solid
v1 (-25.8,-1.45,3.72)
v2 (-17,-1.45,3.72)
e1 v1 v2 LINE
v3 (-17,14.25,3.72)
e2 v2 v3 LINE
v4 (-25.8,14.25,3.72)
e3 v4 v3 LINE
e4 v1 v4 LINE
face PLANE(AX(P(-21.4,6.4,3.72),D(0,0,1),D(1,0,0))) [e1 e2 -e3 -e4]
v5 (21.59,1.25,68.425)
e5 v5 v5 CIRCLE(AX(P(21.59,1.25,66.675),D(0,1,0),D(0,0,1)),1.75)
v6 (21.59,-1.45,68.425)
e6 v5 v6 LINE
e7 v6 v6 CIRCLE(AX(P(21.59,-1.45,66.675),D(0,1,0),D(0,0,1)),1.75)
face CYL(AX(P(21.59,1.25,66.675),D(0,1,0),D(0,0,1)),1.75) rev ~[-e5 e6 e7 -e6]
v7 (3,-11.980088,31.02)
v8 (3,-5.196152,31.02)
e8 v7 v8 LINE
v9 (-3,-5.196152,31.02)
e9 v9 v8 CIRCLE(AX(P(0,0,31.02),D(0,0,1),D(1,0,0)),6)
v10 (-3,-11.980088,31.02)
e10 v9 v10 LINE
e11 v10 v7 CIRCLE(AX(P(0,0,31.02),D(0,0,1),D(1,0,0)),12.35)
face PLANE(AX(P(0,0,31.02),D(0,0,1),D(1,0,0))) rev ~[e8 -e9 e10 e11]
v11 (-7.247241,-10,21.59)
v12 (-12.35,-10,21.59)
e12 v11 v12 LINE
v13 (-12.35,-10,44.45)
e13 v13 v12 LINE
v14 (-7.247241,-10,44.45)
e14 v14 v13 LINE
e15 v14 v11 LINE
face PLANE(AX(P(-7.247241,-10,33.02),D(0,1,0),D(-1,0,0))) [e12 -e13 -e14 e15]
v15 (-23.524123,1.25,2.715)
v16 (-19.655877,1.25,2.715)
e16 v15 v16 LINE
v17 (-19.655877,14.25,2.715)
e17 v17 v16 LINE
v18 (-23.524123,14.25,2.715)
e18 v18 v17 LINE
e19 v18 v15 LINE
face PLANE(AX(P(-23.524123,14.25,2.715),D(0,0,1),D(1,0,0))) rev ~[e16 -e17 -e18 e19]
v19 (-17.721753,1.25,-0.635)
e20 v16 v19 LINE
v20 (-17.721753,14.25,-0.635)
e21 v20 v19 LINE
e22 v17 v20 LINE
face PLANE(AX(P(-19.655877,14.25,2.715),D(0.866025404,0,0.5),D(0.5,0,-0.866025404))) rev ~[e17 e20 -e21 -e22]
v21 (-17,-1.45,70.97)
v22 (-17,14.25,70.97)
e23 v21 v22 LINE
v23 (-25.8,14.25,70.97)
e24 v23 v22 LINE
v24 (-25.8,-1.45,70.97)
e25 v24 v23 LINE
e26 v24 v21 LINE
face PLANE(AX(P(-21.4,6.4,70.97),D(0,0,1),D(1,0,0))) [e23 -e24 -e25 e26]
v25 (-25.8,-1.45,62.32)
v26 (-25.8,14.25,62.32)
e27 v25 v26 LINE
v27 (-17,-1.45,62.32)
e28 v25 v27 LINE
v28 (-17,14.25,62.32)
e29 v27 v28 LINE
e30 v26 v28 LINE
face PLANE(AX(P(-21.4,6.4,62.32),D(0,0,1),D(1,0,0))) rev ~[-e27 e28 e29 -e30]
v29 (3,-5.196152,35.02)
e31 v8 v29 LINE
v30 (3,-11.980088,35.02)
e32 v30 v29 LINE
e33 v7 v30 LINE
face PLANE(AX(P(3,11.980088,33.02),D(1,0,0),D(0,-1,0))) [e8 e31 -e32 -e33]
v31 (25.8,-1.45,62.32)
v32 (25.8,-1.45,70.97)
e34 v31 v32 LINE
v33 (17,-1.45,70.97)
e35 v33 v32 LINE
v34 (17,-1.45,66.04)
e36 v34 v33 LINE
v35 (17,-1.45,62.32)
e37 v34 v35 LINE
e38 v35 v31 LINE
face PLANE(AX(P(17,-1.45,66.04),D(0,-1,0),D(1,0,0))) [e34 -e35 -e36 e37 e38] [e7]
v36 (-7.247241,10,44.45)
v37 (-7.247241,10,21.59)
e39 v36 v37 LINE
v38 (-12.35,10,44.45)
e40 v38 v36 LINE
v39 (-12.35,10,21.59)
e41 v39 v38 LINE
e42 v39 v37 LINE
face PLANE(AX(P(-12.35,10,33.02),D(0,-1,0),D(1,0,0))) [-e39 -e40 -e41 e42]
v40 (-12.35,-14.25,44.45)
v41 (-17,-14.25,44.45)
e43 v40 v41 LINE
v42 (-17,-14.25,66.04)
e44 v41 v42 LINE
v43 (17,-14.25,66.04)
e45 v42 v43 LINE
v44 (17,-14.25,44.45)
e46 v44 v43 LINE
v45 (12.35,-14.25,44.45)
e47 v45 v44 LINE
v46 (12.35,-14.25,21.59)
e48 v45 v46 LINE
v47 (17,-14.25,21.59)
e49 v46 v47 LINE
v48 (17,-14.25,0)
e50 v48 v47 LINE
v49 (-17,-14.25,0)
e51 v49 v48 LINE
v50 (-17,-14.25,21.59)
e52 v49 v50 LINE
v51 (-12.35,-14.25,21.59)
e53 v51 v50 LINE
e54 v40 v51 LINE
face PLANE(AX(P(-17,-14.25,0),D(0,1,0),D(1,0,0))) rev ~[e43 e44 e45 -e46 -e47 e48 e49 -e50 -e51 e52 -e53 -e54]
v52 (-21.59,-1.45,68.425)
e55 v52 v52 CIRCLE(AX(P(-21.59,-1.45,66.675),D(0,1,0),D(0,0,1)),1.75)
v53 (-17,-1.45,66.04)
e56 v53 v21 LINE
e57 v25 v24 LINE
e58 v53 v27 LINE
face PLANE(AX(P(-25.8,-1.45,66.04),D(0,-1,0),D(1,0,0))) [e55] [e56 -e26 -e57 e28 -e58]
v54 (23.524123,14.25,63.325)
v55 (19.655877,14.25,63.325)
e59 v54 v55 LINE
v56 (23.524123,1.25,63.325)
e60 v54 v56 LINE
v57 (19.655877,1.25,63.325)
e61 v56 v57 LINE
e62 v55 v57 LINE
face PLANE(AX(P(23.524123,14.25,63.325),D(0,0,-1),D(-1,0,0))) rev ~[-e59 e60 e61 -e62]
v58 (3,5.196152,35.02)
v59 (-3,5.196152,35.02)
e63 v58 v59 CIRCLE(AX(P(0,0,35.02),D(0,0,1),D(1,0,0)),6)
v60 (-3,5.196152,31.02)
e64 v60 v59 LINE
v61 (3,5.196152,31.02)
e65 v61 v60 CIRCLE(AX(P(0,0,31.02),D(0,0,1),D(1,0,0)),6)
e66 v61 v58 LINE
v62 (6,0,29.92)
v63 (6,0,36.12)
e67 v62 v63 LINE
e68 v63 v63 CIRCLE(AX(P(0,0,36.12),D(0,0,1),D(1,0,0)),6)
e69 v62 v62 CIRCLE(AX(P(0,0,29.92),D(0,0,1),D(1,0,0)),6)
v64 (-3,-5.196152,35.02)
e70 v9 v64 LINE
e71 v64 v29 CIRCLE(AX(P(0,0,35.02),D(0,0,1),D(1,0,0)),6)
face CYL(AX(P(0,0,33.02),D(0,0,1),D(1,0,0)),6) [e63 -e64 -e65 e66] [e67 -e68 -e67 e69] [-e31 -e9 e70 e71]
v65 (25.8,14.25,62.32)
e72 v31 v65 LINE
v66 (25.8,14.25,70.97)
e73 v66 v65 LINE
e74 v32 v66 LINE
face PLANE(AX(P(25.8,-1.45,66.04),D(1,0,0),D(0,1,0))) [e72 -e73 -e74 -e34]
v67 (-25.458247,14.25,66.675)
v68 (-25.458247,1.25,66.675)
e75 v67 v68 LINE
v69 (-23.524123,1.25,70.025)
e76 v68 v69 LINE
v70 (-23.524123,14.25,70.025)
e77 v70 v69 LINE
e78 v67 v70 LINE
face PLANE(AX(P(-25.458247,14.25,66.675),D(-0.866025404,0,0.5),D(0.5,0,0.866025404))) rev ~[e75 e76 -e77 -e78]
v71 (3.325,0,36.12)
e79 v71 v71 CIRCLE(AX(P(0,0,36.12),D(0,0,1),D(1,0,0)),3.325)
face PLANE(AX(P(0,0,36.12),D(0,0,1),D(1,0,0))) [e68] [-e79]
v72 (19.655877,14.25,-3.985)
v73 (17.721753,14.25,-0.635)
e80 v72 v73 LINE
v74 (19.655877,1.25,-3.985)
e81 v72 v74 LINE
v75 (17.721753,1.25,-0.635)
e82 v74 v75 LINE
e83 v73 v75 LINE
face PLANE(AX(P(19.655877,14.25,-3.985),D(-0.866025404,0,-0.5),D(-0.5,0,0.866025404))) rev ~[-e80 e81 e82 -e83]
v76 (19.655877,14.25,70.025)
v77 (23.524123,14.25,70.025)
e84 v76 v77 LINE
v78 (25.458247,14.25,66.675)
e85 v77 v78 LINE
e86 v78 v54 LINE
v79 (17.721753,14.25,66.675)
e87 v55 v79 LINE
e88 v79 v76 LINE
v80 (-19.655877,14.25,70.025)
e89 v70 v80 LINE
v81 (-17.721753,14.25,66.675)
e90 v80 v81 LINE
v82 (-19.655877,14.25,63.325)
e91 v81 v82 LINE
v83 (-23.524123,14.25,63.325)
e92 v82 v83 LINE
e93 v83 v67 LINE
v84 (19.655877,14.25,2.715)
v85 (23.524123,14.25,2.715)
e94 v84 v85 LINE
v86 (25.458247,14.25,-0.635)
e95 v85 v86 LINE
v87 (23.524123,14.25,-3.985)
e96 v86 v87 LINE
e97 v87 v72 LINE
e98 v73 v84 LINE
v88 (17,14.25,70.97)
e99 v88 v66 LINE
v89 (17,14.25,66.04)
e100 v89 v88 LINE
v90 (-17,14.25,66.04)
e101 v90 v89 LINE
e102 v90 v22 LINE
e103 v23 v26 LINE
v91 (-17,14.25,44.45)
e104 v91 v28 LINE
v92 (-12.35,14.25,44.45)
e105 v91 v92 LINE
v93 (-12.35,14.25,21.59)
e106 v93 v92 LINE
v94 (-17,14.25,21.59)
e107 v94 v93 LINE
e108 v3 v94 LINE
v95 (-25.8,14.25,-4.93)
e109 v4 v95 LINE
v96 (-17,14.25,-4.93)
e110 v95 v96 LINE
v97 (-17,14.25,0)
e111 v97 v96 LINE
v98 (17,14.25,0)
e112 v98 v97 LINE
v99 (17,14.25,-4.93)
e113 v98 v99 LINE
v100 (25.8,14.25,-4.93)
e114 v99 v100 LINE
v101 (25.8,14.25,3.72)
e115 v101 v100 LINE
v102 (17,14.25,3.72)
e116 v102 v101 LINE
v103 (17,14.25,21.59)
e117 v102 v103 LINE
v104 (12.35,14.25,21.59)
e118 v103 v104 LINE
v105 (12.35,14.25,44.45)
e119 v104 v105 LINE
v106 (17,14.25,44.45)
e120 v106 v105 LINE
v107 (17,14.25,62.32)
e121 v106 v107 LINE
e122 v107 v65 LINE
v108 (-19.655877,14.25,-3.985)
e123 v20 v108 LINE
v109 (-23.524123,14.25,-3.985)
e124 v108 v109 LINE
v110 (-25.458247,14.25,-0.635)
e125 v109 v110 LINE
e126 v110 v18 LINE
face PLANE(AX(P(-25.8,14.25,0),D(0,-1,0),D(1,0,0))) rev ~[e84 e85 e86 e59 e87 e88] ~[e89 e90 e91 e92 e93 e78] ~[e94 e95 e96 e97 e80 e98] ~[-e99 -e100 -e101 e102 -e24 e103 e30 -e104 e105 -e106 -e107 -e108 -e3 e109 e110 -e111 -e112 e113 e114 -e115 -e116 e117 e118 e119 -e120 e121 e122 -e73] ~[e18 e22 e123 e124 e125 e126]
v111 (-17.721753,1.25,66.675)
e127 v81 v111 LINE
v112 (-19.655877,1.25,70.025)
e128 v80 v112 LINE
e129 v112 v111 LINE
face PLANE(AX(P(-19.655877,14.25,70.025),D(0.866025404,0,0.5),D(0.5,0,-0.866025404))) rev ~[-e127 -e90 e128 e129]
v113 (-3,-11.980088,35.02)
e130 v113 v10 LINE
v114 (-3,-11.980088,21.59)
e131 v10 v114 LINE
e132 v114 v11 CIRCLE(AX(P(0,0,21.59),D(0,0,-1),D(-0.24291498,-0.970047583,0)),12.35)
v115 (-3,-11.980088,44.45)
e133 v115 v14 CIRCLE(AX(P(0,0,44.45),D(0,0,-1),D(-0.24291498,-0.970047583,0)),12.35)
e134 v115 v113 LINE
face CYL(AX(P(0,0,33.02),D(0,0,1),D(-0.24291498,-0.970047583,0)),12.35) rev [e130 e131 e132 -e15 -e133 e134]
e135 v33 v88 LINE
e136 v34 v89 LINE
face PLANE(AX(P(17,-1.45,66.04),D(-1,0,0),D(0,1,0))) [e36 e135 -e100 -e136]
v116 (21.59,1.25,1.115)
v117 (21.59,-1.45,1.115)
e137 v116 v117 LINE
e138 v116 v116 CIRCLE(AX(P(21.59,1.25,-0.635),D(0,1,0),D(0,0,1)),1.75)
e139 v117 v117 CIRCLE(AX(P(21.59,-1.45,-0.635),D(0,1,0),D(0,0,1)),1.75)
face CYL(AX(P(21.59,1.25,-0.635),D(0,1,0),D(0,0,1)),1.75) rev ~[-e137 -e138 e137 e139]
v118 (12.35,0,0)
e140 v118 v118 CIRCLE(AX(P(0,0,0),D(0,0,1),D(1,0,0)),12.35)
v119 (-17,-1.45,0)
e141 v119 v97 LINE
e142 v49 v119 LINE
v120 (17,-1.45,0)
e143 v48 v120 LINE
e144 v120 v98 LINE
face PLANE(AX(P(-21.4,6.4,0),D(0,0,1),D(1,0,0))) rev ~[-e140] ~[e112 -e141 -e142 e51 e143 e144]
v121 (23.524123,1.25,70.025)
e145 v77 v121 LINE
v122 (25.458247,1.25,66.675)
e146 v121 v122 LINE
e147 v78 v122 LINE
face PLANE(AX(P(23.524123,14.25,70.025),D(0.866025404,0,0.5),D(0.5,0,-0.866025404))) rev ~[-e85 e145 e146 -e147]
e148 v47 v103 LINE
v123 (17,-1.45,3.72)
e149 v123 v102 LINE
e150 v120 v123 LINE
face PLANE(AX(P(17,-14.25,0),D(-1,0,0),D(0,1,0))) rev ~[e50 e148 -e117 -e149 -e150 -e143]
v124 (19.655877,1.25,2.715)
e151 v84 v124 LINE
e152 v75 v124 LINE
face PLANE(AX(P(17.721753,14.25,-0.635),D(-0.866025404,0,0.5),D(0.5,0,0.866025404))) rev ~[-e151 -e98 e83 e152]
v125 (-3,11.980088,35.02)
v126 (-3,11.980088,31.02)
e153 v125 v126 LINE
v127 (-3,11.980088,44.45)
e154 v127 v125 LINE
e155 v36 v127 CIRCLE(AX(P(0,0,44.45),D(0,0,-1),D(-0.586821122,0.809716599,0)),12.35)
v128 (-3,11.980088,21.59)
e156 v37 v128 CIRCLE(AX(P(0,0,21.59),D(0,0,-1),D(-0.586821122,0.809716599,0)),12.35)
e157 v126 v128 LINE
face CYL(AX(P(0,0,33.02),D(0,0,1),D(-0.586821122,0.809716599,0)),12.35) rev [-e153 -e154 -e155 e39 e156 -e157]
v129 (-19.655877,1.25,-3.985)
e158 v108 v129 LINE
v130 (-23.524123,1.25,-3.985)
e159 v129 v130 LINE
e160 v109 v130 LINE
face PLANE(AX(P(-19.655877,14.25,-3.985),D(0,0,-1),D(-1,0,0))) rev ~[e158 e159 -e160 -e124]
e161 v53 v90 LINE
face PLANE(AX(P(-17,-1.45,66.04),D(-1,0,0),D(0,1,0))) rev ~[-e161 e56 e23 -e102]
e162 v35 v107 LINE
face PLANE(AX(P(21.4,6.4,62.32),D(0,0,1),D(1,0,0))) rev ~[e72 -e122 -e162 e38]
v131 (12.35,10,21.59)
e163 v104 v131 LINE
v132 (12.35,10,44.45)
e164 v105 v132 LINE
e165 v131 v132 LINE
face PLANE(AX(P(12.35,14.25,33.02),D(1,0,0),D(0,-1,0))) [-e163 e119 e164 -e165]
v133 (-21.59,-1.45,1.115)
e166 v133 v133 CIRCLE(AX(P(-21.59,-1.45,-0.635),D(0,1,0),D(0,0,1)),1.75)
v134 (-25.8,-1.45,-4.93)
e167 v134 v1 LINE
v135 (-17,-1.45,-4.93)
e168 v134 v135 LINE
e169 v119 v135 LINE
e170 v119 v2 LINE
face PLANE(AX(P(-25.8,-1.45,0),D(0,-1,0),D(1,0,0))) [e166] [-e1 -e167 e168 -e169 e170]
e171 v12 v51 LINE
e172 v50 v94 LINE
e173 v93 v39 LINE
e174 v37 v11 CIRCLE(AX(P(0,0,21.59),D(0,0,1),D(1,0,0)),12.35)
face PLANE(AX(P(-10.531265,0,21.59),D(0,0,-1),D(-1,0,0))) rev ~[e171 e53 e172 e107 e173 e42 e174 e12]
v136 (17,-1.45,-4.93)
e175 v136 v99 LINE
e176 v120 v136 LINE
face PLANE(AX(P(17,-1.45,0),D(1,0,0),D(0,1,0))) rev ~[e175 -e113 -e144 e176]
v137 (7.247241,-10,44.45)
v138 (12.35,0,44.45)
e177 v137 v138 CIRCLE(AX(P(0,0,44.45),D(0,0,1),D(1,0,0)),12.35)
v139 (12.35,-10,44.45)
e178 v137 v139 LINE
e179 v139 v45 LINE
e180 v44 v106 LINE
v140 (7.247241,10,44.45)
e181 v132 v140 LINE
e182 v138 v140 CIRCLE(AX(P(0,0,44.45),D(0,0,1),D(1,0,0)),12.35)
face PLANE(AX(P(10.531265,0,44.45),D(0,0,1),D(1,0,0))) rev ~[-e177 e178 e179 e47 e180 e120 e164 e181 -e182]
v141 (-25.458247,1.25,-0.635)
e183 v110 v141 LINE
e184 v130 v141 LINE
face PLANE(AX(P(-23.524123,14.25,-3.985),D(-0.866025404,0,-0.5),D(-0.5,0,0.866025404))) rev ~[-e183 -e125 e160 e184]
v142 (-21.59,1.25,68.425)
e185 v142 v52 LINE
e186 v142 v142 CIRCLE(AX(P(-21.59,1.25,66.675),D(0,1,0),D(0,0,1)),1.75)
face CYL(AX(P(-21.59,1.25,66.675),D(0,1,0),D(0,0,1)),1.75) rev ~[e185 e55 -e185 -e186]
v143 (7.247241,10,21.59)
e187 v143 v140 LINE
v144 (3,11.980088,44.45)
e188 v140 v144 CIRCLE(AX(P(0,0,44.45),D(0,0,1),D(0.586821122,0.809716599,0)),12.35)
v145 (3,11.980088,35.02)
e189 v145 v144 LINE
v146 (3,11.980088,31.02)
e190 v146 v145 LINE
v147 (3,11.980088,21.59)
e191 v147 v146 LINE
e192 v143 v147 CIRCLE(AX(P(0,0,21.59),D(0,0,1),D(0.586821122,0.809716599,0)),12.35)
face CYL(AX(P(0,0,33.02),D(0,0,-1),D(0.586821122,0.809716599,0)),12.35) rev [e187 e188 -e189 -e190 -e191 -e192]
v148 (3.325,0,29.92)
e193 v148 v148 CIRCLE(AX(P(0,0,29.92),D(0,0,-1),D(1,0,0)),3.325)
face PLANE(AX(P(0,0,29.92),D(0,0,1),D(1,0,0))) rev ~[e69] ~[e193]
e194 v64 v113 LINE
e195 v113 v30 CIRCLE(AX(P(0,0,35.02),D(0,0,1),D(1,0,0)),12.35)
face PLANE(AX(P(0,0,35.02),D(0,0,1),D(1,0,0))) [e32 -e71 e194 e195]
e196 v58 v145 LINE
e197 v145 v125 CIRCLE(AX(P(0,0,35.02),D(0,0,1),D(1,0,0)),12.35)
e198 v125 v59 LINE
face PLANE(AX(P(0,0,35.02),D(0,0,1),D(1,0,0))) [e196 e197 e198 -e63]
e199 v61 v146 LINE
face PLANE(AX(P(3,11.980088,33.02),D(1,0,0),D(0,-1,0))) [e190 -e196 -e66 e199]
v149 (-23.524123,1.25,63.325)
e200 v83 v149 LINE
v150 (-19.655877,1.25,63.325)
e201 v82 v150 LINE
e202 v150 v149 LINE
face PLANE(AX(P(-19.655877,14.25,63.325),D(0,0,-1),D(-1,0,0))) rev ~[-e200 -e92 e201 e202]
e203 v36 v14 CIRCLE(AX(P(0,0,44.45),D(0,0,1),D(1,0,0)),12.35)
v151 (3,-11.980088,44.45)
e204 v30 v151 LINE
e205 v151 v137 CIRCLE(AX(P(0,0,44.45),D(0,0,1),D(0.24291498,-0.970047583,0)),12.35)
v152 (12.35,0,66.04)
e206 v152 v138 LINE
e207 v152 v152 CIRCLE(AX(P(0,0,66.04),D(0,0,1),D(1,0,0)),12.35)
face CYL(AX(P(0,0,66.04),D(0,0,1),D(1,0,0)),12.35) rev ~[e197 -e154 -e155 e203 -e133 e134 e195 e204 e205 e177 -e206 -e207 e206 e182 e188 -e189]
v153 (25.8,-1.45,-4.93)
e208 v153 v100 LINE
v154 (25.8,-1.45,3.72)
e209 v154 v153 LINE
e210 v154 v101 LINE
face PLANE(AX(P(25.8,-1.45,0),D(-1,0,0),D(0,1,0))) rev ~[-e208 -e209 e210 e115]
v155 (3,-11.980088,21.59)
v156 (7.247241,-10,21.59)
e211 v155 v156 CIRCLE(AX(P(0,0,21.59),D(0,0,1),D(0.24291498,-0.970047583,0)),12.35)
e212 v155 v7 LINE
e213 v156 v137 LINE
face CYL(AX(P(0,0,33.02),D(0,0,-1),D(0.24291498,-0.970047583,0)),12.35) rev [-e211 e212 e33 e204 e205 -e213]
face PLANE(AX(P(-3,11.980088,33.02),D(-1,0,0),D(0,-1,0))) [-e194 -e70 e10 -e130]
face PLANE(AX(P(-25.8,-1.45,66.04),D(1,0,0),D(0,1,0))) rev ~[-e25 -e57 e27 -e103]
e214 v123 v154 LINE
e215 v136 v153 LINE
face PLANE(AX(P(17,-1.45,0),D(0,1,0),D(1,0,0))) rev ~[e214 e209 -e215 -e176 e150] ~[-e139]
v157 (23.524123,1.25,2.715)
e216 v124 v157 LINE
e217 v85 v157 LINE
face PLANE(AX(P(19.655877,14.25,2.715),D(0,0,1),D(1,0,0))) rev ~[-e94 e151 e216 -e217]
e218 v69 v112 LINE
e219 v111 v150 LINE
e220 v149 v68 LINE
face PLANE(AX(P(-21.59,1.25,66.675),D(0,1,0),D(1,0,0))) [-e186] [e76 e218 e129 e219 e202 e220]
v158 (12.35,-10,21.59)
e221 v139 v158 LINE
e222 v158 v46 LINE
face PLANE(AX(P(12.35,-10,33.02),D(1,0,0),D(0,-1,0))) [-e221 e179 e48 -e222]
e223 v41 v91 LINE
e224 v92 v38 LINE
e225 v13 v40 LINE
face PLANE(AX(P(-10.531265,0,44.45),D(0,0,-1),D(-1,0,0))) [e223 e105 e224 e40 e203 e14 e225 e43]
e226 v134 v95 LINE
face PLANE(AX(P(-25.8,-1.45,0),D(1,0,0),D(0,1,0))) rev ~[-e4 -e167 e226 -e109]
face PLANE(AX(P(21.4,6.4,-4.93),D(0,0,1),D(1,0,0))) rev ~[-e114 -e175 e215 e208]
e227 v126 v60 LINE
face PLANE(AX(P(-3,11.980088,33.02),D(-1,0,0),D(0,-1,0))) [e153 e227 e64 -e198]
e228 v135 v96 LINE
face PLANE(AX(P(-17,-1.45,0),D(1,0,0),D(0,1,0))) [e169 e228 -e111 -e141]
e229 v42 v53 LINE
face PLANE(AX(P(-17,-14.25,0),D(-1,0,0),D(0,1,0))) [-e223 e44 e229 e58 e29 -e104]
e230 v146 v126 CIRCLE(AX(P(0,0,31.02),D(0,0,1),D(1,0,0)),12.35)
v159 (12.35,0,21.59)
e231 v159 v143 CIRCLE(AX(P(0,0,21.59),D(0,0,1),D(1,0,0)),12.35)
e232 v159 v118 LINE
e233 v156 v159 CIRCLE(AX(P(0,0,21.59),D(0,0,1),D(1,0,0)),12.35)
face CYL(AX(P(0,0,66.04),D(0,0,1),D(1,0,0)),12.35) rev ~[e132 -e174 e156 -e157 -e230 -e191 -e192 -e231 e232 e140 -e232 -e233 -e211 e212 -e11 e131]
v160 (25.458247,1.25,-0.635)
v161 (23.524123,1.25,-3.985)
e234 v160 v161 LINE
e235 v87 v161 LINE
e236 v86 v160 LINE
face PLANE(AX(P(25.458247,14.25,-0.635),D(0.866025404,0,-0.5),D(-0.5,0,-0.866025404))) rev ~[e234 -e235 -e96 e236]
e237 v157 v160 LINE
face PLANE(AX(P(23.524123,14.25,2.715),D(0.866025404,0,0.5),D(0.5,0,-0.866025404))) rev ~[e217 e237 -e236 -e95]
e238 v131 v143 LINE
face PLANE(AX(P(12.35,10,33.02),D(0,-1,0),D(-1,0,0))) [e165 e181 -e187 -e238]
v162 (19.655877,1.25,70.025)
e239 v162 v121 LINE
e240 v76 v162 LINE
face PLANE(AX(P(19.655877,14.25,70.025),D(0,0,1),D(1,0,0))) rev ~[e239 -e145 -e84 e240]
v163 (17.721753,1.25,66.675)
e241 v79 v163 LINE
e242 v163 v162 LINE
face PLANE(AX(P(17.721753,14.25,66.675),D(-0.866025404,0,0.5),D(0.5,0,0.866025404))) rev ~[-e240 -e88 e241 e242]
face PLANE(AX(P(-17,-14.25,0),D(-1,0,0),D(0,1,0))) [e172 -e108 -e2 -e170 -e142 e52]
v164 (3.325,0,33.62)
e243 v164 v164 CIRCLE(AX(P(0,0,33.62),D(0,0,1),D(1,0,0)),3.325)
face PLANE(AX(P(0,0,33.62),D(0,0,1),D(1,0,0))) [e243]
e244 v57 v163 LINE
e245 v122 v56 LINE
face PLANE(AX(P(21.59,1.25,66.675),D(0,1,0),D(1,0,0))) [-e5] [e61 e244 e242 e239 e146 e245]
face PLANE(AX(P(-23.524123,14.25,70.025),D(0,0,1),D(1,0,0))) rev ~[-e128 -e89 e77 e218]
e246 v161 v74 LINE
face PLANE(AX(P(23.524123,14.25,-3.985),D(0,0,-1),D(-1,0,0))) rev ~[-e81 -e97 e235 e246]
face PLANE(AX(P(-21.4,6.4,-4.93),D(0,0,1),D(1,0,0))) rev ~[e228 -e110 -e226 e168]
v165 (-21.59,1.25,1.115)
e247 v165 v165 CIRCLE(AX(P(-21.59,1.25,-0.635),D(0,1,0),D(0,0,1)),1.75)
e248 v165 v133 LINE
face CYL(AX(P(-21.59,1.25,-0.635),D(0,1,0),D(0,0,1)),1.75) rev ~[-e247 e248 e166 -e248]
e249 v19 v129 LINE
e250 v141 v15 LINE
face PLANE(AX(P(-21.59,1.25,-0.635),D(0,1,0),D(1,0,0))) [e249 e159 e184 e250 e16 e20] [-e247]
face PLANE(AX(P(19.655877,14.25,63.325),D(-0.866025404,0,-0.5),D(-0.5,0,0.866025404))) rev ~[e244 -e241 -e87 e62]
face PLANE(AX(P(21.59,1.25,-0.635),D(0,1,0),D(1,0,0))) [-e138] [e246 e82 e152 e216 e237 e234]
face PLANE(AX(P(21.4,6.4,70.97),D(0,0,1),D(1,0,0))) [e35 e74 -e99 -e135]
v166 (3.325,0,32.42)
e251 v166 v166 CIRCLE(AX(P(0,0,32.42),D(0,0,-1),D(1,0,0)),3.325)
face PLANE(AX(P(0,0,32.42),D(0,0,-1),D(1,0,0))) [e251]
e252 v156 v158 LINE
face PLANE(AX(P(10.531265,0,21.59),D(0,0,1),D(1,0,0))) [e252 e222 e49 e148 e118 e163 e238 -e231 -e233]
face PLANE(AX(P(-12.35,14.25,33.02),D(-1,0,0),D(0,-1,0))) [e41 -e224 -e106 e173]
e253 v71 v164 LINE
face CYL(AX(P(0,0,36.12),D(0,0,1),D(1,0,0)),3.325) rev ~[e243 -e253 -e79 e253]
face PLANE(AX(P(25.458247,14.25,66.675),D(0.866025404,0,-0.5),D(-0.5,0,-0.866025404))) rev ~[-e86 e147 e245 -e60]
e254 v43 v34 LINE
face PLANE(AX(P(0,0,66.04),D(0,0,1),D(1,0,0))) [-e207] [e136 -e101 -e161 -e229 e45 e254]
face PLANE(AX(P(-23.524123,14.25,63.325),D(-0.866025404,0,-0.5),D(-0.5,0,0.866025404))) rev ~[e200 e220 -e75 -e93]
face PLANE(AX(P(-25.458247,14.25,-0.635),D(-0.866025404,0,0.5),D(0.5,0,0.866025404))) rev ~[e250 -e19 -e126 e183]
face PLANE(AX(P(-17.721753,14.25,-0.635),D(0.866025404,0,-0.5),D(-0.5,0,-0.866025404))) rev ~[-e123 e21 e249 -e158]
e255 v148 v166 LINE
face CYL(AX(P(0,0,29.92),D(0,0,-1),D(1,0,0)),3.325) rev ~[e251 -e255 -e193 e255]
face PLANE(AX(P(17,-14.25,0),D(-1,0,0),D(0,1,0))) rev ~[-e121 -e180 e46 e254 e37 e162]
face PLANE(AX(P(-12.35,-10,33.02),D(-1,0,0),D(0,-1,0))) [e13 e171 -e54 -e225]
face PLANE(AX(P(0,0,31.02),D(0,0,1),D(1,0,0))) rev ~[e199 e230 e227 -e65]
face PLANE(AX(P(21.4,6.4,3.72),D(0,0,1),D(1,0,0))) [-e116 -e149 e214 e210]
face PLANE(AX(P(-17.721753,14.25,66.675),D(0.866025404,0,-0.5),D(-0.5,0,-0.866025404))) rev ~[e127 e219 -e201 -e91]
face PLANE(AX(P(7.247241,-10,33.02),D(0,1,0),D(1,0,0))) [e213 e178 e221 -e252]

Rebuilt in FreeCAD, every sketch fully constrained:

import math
import FreeCAD as App
import Part
import Sketcher
Q = App.Units.Quantity

doc = App.newDocument("Part")
body = doc.addObject("PartDesign::Body", "Body")

# Sketch on XY plane
sketch1 = body.newObject("Sketcher::SketchObject", "Sketch")
sketch1.AttachmentSupport = (doc.getObject("XY_Plane"), [""])
sketch1.MapMode = "FlatFace"
sketch1.addGeometry([
    Part.LineSegment(App.Vector(-17, 14, 0), App.Vector(-17, -14, 0)),
    Part.LineSegment(App.Vector(-17, -14, 0), App.Vector(17, -14, 0)),
    Part.LineSegment(App.Vector(17, -14, 0), App.Vector(17, 14, 0)),
    Part.LineSegment(App.Vector(17, 14, 0), App.Vector(-17, 14, 0)),
], False)
sketch1.addConstraint([
    Sketcher.Constraint("Coincident", 0, 2, 1, 1),
    Sketcher.Constraint("Coincident", 1, 2, 2, 1),
    Sketcher.Constraint("Coincident", 2, 2, 3, 1),
    Sketcher.Constraint("Coincident", 3, 2, 0, 1),
    Sketcher.Constraint("Vertical", 0),
    Sketcher.Constraint("Horizontal", 1),
    Sketcher.Constraint("Vertical", 2),
    Sketcher.Constraint("Horizontal", 3),
    Sketcher.Constraint("Symmetric", 0, 2, 2, 2, -1, 1),
    Sketcher.Constraint("DistanceX", 1, 1, 1, 2, 34.0),
    Sketcher.Constraint("DistanceY", 0, 2, 0, 1, 28.5),
])
pad1 = body.newObject("PartDesign::Pad", "Pad")
pad1.Profile = sketch1
pad1.Length = 66.04

# Sketch on XY plane
sketch2 = body.newObject("Sketcher::SketchObject", "Sketch001")
sketch2.AttachmentSupport = (doc.getObject("XY_Plane"), [""])
sketch2.MapMode = "FlatFace"
sketch2.AttachmentOffset = App.Placement(App.Vector(0, 0, 66.04), App.Rotation())
sketch2.addGeometry(Part.Circle(App.Vector(0, 0, 0), App.Vector(0, 0, 1), 12), False)
sketch2.addConstraint([
    Sketcher.Constraint("Coincident", 0, 3, -1, 1),
    Sketcher.Constraint("Diameter", 0, 24.7),
])
pocket1 = body.newObject("PartDesign::Pocket", "Pocket")
pocket1.Profile = sketch2
pocket1.Type = "ThroughAll"

# Sketch on XY plane
sketch3 = body.newObject("Sketcher::SketchObject", "Sketch002")
sketch3.AttachmentSupport = (doc.getObject("XY_Plane"), [""])
sketch3.MapMode = "FlatFace"
sketch3.AttachmentOffset = App.Placement(App.Vector(0, 0, 66.04), App.Rotation())
sketch3.addGeometry([
    Part.LineSegment(App.Vector(-26, 14, 0), App.Vector(-26, -1, 0)),  # 0
    Part.LineSegment(App.Vector(-26, -1, 0), App.Vector(-17, -1, 0)),  # 1
    Part.LineSegment(App.Vector(-17, -1, 0), App.Vector(-17, 14, 0)),  # 2
    Part.LineSegment(App.Vector(-17, 14, 0), App.Vector(-26, 14, 0)),  # 3
    Part.LineSegment(App.Vector(17, 14, 0), App.Vector(17, -1, 0)),  # 4
    Part.LineSegment(App.Vector(17, -1, 0), App.Vector(26, -1, 0)),  # 5
    Part.LineSegment(App.Vector(26, -1, 0), App.Vector(26, 14, 0)),  # 6
    Part.LineSegment(App.Vector(26, 14, 0), App.Vector(17, 14, 0)),  # 7
], False)
sketch3.addConstraint([
    Sketcher.Constraint("Coincident", 0, 2, 1, 1),
    Sketcher.Constraint("Coincident", 1, 2, 2, 1),
    Sketcher.Constraint("Coincident", 2, 2, 3, 1),
    Sketcher.Constraint("Coincident", 3, 2, 0, 1),
    Sketcher.Constraint("Coincident", 4, 2, 5, 1),
    Sketcher.Constraint("Coincident", 5, 2, 6, 1),
    Sketcher.Constraint("Coincident", 6, 2, 7, 1),
    Sketcher.Constraint("Coincident", 7, 2, 4, 1),
    Sketcher.Constraint("Vertical", 0),
    Sketcher.Constraint("Horizontal", 1),
    Sketcher.Constraint("Vertical", 2),
    Sketcher.Constraint("Horizontal", 3),
    Sketcher.Constraint("Vertical", 4),
    Sketcher.Constraint("Horizontal", 5),
    Sketcher.Constraint("Vertical", 6),
    Sketcher.Constraint("Horizontal", 7),
    Sketcher.Constraint("Symmetric", 1, 2, 4, 2, -2),
    Sketcher.Constraint("Symmetric", 3, 2, 6, 2, -2),
    Sketcher.Constraint("DistanceX", 1, 1, 1, 2, 8.8),
    Sketcher.Constraint("DistanceY", 0, 2, 0, 1, 15.7),
    Sketcher.Constraint("DistanceX", 1, 2, -1, 1, 17.0),
    Sketcher.Constraint("DistanceY", 0, 2, -1, 1, 1.45),
])
pad2 = body.newObject("PartDesign::Pad", "Pad001")
pad2.Profile = sketch3
pad2.Type = "TwoLengths"
pad2.Length = 4.93
pad2.Length2 = 3.72

# Sketch on XY plane
sketch4 = body.newObject("Sketcher::SketchObject", "Sketch003")
sketch4.AttachmentSupport = (doc.getObject("XY_Plane"), [""])
sketch4.MapMode = "FlatFace"
sketch4.addGeometry([
    Part.LineSegment(App.Vector(-26, 14, 0), App.Vector(-26, -1, 0)),  # 0
    Part.LineSegment(App.Vector(-26, -1, 0), App.Vector(-17, -1, 0)),  # 1
    Part.LineSegment(App.Vector(-17, -1, 0), App.Vector(-17, 14, 0)),  # 2
    Part.LineSegment(App.Vector(-17, 14, 0), App.Vector(-26, 14, 0)),  # 3
    Part.LineSegment(App.Vector(17, 14, 0), App.Vector(17, -1, 0)),  # 4
    Part.LineSegment(App.Vector(17, -1, 0), App.Vector(26, -1, 0)),  # 5
    Part.LineSegment(App.Vector(26, -1, 0), App.Vector(26, 14, 0)),  # 6
    Part.LineSegment(App.Vector(26, 14, 0), App.Vector(17, 14, 0)),  # 7
], False)
sketch4.addConstraint([
    Sketcher.Constraint("Coincident", 0, 2, 1, 1),
    Sketcher.Constraint("Coincident", 1, 2, 2, 1),
    Sketcher.Constraint("Coincident", 2, 2, 3, 1),
    Sketcher.Constraint("Coincident", 3, 2, 0, 1),
    Sketcher.Constraint("Coincident", 4, 2, 5, 1),
    Sketcher.Constraint("Coincident", 5, 2, 6, 1),
    Sketcher.Constraint("Coincident", 6, 2, 7, 1),
    Sketcher.Constraint("Coincident", 7, 2, 4, 1),
    Sketcher.Constraint("Vertical", 0),
    Sketcher.Constraint("Horizontal", 1),
    Sketcher.Constraint("Vertical", 2),
    Sketcher.Constraint("Horizontal", 3),
    Sketcher.Constraint("Vertical", 4),
    Sketcher.Constraint("Horizontal", 5),
    Sketcher.Constraint("Vertical", 6),
    Sketcher.Constraint("Horizontal", 7),
    Sketcher.Constraint("Symmetric", 1, 2, 4, 2, -2),
    Sketcher.Constraint("Symmetric", 3, 2, 6, 2, -2),
    Sketcher.Constraint("DistanceX", 1, 1, 1, 2, 8.8),
    Sketcher.Constraint("DistanceY", 0, 2, 0, 1, 15.7),
    Sketcher.Constraint("DistanceX", 1, 2, -1, 1, 17.0),
    Sketcher.Constraint("DistanceY", 0, 2, -1, 1, 1.45),
])
pad3 = body.newObject("PartDesign::Pad", "Pad002")
pad3.Profile = sketch4
pad3.Type = "TwoLengths"
pad3.Length = 3.72
pad3.Length2 = 4.93

# Sketch on XZ plane
sketch5 = body.newObject("Sketcher::SketchObject", "Sketch004")
sketch5.AttachmentSupport = (doc.getObject("XZ_Plane"), [""])
sketch5.MapMode = "FlatFace"
sketch5.AttachmentOffset = App.Placement(App.Vector(0, 0, -14.25), App.Rotation())
sketch5.addGeometry([
    Part.LineSegment(App.Vector(-25.5, -0.6, 0), App.Vector(-23.5, 2.7, 0)),  # 0
    Part.LineSegment(App.Vector(-23.5, 2.7, 0), App.Vector(-19.7, 2.7, 0)),  # 1
    Part.LineSegment(App.Vector(-19.7, 2.7, 0), App.Vector(-17.7, -0.6, 0)),  # 2
    Part.LineSegment(App.Vector(-17.7, -0.6, 0), App.Vector(-19.7, -4, 0)),  # 3
    Part.LineSegment(App.Vector(-19.7, -4, 0), App.Vector(-23.5, -4, 0)),  # 4
    Part.LineSegment(App.Vector(-23.5, -4, 0), App.Vector(-25.5, -0.6, 0)),  # 5
    Part.LineSegment(App.Vector(-17.7, 66.7, 0), App.Vector(-19.7, 63.3, 0)),  # 6
    Part.LineSegment(App.Vector(-19.7, 63.3, 0), App.Vector(-23.5, 63.3, 0)),  # 7
    Part.LineSegment(App.Vector(-23.5, 63.3, 0), App.Vector(-25.5, 66.7, 0)),  # 8
    Part.LineSegment(App.Vector(-25.5, 66.7, 0), App.Vector(-23.5, 70, 0)),  # 9
    Part.LineSegment(App.Vector(-23.5, 70, 0), App.Vector(-19.7, 70, 0)),  # 10
    Part.LineSegment(App.Vector(-19.7, 70, 0), App.Vector(-17.7, 66.7, 0)),  # 11
    Part.LineSegment(App.Vector(17.7, 66.7, 0), App.Vector(19.7, 70, 0)),  # 12
    Part.LineSegment(App.Vector(19.7, 70, 0), App.Vector(23.5, 70, 0)),  # 13
    Part.LineSegment(App.Vector(23.5, 70, 0), App.Vector(25.5, 66.7, 0)),  # 14
    Part.LineSegment(App.Vector(25.5, 66.7, 0), App.Vector(23.5, 63.3, 0)),  # 15
    Part.LineSegment(App.Vector(23.5, 63.3, 0), App.Vector(19.7, 63.3, 0)),  # 16
    Part.LineSegment(App.Vector(19.7, 63.3, 0), App.Vector(17.7, 66.7, 0)),  # 17
    Part.LineSegment(App.Vector(25.5, -0.6, 0), App.Vector(23.5, -4, 0)),  # 18
    Part.LineSegment(App.Vector(23.5, -4, 0), App.Vector(19.7, -4, 0)),  # 19
    Part.LineSegment(App.Vector(19.7, -4, 0), App.Vector(17.7, -0.6, 0)),  # 20
    Part.LineSegment(App.Vector(17.7, -0.6, 0), App.Vector(19.7, 2.7, 0)),  # 21
    Part.LineSegment(App.Vector(19.7, 2.7, 0), App.Vector(23.5, 2.7, 0)),  # 22
    Part.LineSegment(App.Vector(23.5, 2.7, 0), App.Vector(25.5, -0.6, 0)),  # 23
], False)
sketch5.addConstraint([
    Sketcher.Constraint("Coincident", 0, 2, 1, 1),
    Sketcher.Constraint("Coincident", 1, 2, 2, 1),
    Sketcher.Constraint("Coincident", 2, 2, 3, 1),
    Sketcher.Constraint("Coincident", 3, 2, 4, 1),
    Sketcher.Constraint("Coincident", 4, 2, 5, 1),
    Sketcher.Constraint("Coincident", 5, 2, 0, 1),
    Sketcher.Constraint("Coincident", 6, 2, 7, 1),
    Sketcher.Constraint("Coincident", 7, 2, 8, 1),
    Sketcher.Constraint("Coincident", 8, 2, 9, 1),
    Sketcher.Constraint("Coincident", 9, 2, 10, 1),
    Sketcher.Constraint("Coincident", 10, 2, 11, 1),
    Sketcher.Constraint("Coincident", 11, 2, 6, 1),
    Sketcher.Constraint("Coincident", 12, 2, 13, 1),
    Sketcher.Constraint("Coincident", 13, 2, 14, 1),
    Sketcher.Constraint("Coincident", 14, 2, 15, 1),
    Sketcher.Constraint("Coincident", 15, 2, 16, 1),
    Sketcher.Constraint("Coincident", 16, 2, 17, 1),
    Sketcher.Constraint("Coincident", 17, 2, 12, 1),
    Sketcher.Constraint("Coincident", 18, 2, 19, 1),
    Sketcher.Constraint("Coincident", 19, 2, 20, 1),
    Sketcher.Constraint("Coincident", 20, 2, 21, 1),
    Sketcher.Constraint("Coincident", 21, 2, 22, 1),
    Sketcher.Constraint("Coincident", 22, 2, 23, 1),
    Sketcher.Constraint("Coincident", 23, 2, 18, 1),
    Sketcher.Constraint("Horizontal", 1),
    Sketcher.Constraint("Horizontal", 4),
    Sketcher.Constraint("Horizontal", 7),
    Sketcher.Constraint("Horizontal", 10),
    Sketcher.Constraint("Horizontal", 13),
    Sketcher.Constraint("Horizontal", 16),
    Sketcher.Constraint("Horizontal", 19),
    Sketcher.Constraint("Horizontal", 22),
    Sketcher.Constraint("Symmetric", 10, 2, 12, 2, -2),
    Sketcher.Constraint("Symmetric", 8, 2, 14, 2, -2),
    Sketcher.Constraint("Symmetric", 7, 2, 15, 2, -2),
    Sketcher.Constraint("Symmetric", 11, 2, 17, 2, -2),
    Sketcher.Constraint("Symmetric", 4, 2, 18, 2, -2),
    Sketcher.Constraint("Symmetric", 2, 2, 20, 2, -2),
    Sketcher.Constraint("Symmetric", 1, 2, 21, 2, -2),
    Sketcher.Constraint("Symmetric", 5, 2, 23, 2, -2),
    Sketcher.Constraint("Parallel", 0, 3),
    Sketcher.Constraint("Parallel", 2, 5),
    Sketcher.Constraint("Parallel", 3, 6),
    Sketcher.Constraint("Parallel", 5, 8),
    Sketcher.Constraint("Parallel", 6, 9),
    Sketcher.Constraint("Parallel", 8, 11),
    Sketcher.Constraint("Parallel", 9, 12),
    Sketcher.Constraint("Parallel", 11, 14),
    Sketcher.Constraint("Parallel", 14, 17),
    Sketcher.Constraint("Parallel", 17, 20),
    Sketcher.Constraint("Parallel", 20, 23),
    Sketcher.Constraint("Horizontal", 2, 2, 5, 2),
    Sketcher.Constraint("Horizontal", 8, 2, 11, 2),
    Sketcher.Constraint("Vertical", 1, 2, 3, 2),
    Sketcher.Constraint("Vertical", 3, 2, 6, 2),
    Sketcher.Constraint("Vertical", 4, 2, 7, 2),
    Sketcher.Constraint("Vertical", 5, 2, 8, 2),
    Sketcher.Constraint("Vertical", 7, 2, 9, 2),
    Sketcher.Constraint("Angle", 0, Q("60 deg")),
    Sketcher.Constraint("DistanceY", 3, 2, 1, 2, 6.7),
    Sketcher.Constraint("DistanceY", 1, 2, 6, 2, 60.61),
    Sketcher.Constraint("DistanceX", 9, 2, 12, 2, 43.18),
    Sketcher.Constraint("DistanceY", -1, 1, 0, 2, 2.715),
    Sketcher.Constraint("DistanceX", 1, 1, 1, 2, 3.868247),
])
pocket2 = body.newObject("PartDesign::Pocket", "Pocket001")
pocket2.Profile = sketch5
pocket2.Length = 13
pocket2.Reversed = True
body2 = doc.addObject("PartDesign::Body", "Body001")

# Sketch on XY plane
sketch6 = body2.newObject("Sketcher::SketchObject", "Sketch005")
sketch6.AttachmentSupport = (doc.getObject("XY_Plane001"), [""])
sketch6.MapMode = "FlatFace"
sketch6.AttachmentOffset = App.Placement(App.Vector(0, 0, 33.02), App.Rotation())
sketch6.addGeometry(Part.Circle(App.Vector(0, 0, 0), App.Vector(0, 0, 1), 12), False)
sketch6.addConstraint([
    Sketcher.Constraint("Coincident", 0, 3, -1, 1),
    Sketcher.Constraint("Diameter", 0, 24.7),
])
pad4 = body2.newObject("PartDesign::Pad", "Pad003")
pad4.Profile = sketch6
pad4.Length = 4
pad4.Midplane = True
body3 = doc.addObject("PartDesign::Body", "Body002")
body3.AllowCompound = True

# Sketch on XY plane
sketch7 = body3.newObject("Sketcher::SketchObject", "Sketch006")
sketch7.AttachmentSupport = (doc.getObject("XY_Plane002"), [""])
sketch7.MapMode = "FlatFace"
sketch7.AttachmentOffset = App.Placement(App.Vector(0, 0, 33.02), App.Rotation())
sketch7.addGeometry([
    Part.LineSegment(App.Vector(17, -14.2, 0), App.Vector(17, 14.2, 0)),  # 0
    Part.LineSegment(App.Vector(17, 14.2, 0), App.Vector(12.3, 14.2, 0)),  # 1
    Part.LineSegment(App.Vector(12.3, 14.2, 0), App.Vector(12.3, 10, 0)),  # 2
    Part.LineSegment(App.Vector(12.3, 10, 0), App.Vector(7.2, 10, 0)),  # 3
    Part.ArcOfCircle(Part.Circle(App.Vector(0, 0, 0), App.Vector(0, 0, 1), 12.3), math.radians(54), math.radians(76)),  # 4
    Part.LineSegment(App.Vector(3, 12, 0), App.Vector(3, -12, 0)),  # 5
    Part.ArcOfCircle(Part.Circle(App.Vector(0, 0, 0), App.Vector(0, 0, 1), 12.3), math.radians(-76), math.radians(-54)),  # 6
    Part.LineSegment(App.Vector(7.2, -10, 0), App.Vector(12.3, -10, 0)),  # 7
    Part.LineSegment(App.Vector(12.3, -10, 0), App.Vector(12.3, -14.2, 0)),  # 8
    Part.LineSegment(App.Vector(12.3, -14.2, 0), App.Vector(17, -14.2, 0)),  # 9
    Part.LineSegment(App.Vector(-7.2, 10, 0), App.Vector(-12.3, 10, 0)),  # 10
    Part.LineSegment(App.Vector(-12.3, 10, 0), App.Vector(-12.3, 14.2, 0)),  # 11
    Part.LineSegment(App.Vector(-12.3, 14.2, 0), App.Vector(-17, 14.2, 0)),  # 12
    Part.LineSegment(App.Vector(-17, 14.2, 0), App.Vector(-17, -14.2, 0)),  # 13
    Part.LineSegment(App.Vector(-17, -14.2, 0), App.Vector(-12.3, -14.2, 0)),  # 14
    Part.LineSegment(App.Vector(-12.3, -14.2, 0), App.Vector(-12.3, -10, 0)),  # 15
    Part.LineSegment(App.Vector(-12.3, -10, 0), App.Vector(-7.2, -10, 0)),  # 16
    Part.ArcOfCircle(Part.Circle(App.Vector(0, 0, 0), App.Vector(0, 0, 1), 12.3), math.radians(-126), math.radians(-104)),  # 17
    Part.LineSegment(App.Vector(-3, -12, 0), App.Vector(-3, 0, 0)),  # 18
    Part.LineSegment(App.Vector(-3, 0, 0), App.Vector(-3, 12, 0)),  # 19
    Part.ArcOfCircle(Part.Circle(App.Vector(0, 0, 0), App.Vector(0, 0, 1), 12.3), math.radians(104), math.radians(126)),  # 20
], False)
sketch7.addConstraint([
    Sketcher.Constraint("Coincident", 0, 2, 1, 1),
    Sketcher.Constraint("Coincident", 1, 2, 2, 1),
    Sketcher.Constraint("Coincident", 2, 2, 3, 1),
    Sketcher.Constraint("Coincident", 3, 2, 4, 1),
    Sketcher.Constraint("Coincident", 4, 2, 5, 1),
    Sketcher.Constraint("Coincident", 5, 2, 6, 1),
    Sketcher.Constraint("Coincident", 6, 2, 7, 1),
    Sketcher.Constraint("Coincident", 7, 2, 8, 1),
    Sketcher.Constraint("Coincident", 8, 2, 9, 1),
    Sketcher.Constraint("Coincident", 9, 2, 0, 1),
    Sketcher.Constraint("Coincident", 10, 2, 11, 1),
    Sketcher.Constraint("Coincident", 11, 2, 12, 1),
    Sketcher.Constraint("Coincident", 12, 2, 13, 1),
    Sketcher.Constraint("Coincident", 13, 2, 14, 1),
    Sketcher.Constraint("Coincident", 14, 2, 15, 1),
    Sketcher.Constraint("Coincident", 15, 2, 16, 1),
    Sketcher.Constraint("Coincident", 16, 2, 17, 1),
    Sketcher.Constraint("Coincident", 17, 2, 18, 1),
    Sketcher.Constraint("Coincident", 18, 2, 19, 1),
    Sketcher.Constraint("Coincident", 19, 2, 20, 1),
    Sketcher.Constraint("Coincident", 20, 2, 10, 1),
    Sketcher.Constraint("Vertical", 0),
    Sketcher.Constraint("Horizontal", 1),
    Sketcher.Constraint("Vertical", 2),
    Sketcher.Constraint("Horizontal", 3),
    Sketcher.Constraint("Vertical", 5),
    Sketcher.Constraint("Horizontal", 7),
    Sketcher.Constraint("Vertical", 8),
    Sketcher.Constraint("Horizontal", 9),
    Sketcher.Constraint("Horizontal", 10),
    Sketcher.Constraint("Vertical", 11),
    Sketcher.Constraint("Horizontal", 12),
    Sketcher.Constraint("Vertical", 13),
    Sketcher.Constraint("Horizontal", 14),
    Sketcher.Constraint("Vertical", 15),
    Sketcher.Constraint("Horizontal", 16),
    Sketcher.Constraint("Vertical", 18),
    Sketcher.Constraint("Vertical", 19),
    Sketcher.Constraint("Coincident", 4, 3, -1, 1),
    Sketcher.Constraint("Coincident", 6, 3, -1, 1),
    Sketcher.Constraint("Coincident", 17, 3, -1, 1),
    Sketcher.Constraint("Coincident", 20, 3, -1, 1),
    Sketcher.Constraint("Equal", 4, 6),
    Sketcher.Constraint("Equal", 6, 17),
    Sketcher.Constraint("Equal", 17, 20),
    Sketcher.Constraint("Symmetric", 7, 2, 10, 2, -1, 1),
    Sketcher.Constraint("Symmetric", 9, 2, 12, 2, -1, 1),
    Sketcher.Constraint("Symmetric", 1, 2, 14, 2, -1, 1),
    Sketcher.Constraint("Symmetric", 2, 2, 10, 2, -2),
    Sketcher.Constraint("PointOnObject", 18, 2, -1),
    Sketcher.Constraint("Horizontal", 1, 2, 11, 2),
    Sketcher.Constraint("Horizontal", 7, 2, 15, 2),
    Sketcher.Constraint("Horizontal", 5, 2, 17, 2),
    Sketcher.Constraint("Radius", 4, 12.35),
    Sketcher.Constraint("DistanceY", 0, 1, 0, 2, 28.5),
    Sketcher.Constraint("DistanceX", -1, 1, 0, 2, 17.0),
    Sketcher.Constraint("DistanceY", -1, 1, 2, 2, 10.0),
    Sketcher.Constraint("DistanceX", -1, 1, 4, 2, 3.0),
    Sketcher.Constraint("DistanceX", 1, 2, 1, 1, 4.65),
])
pad5 = body3.newObject("PartDesign::Pad", "Pad004")
pad5.Profile = sketch7
pad5.Length = 22.86
pad5.Midplane = True
doc.recompute()

body4 = doc.addObject("PartDesign::Body", "Body003")
body4.BaseFeature = body3
boolean = body.newObject("PartDesign::Boolean", "Boolean")
boolean.Type = "Cut"
boolean.addObjects([body4])
doc.recompute()

boolean2 = body2.newObject("PartDesign::Boolean", "Boolean001")
boolean2.Type = "Cut"
boolean2.addObjects([body3])
doc.recompute()

boolean3 = body.newObject("PartDesign::Boolean", "Boolean002")
boolean3.Type = "Fuse"
boolean3.addObjects([body2])

# Sketch on XY plane
sketch8 = body.newObject("Sketcher::SketchObject", "Sketch007")
sketch8.AttachmentSupport = (doc.getObject("XY_Plane"), [""])
sketch8.MapMode = "FlatFace"
sketch8.AttachmentOffset = App.Placement(App.Vector(0, 0, 33.02), App.Rotation())
sketch8.addGeometry(Part.Circle(App.Vector(0, 0, 0), App.Vector(0, 0, 1), 6), False)
sketch8.addConstraint([
    Sketcher.Constraint("Coincident", 0, 3, -1, 1),
    Sketcher.Constraint("Diameter", 0, 12.0),
])
pad6 = body.newObject("PartDesign::Pad", "Pad005")
pad6.Profile = sketch8
pad6.Length = 6.2
pad6.Midplane = True

# Sketch on XY plane
sketch9 = body.newObject("Sketcher::SketchObject", "Sketch008")
sketch9.AttachmentSupport = (doc.getObject("XY_Plane"), [""])
sketch9.MapMode = "FlatFace"
sketch9.AttachmentOffset = App.Placement(App.Vector(0, 0, 36.12), App.Rotation())
sketch9.addGeometry(Part.Circle(App.Vector(0, 0, 0), App.Vector(0, 0, 1), 3.3), False)
sketch9.addConstraint([
    Sketcher.Constraint("Coincident", 0, 3, -1, 1),
    Sketcher.Constraint("Diameter", 0, 6.65),
])
pocket3 = body.newObject("PartDesign::Pocket", "Pocket002")
pocket3.Profile = sketch9
pocket3.Length = 2.5

# Sketch on XY plane
sketch10 = body.newObject("Sketcher::SketchObject", "Sketch009")
sketch10.AttachmentSupport = (doc.getObject("XY_Plane"), [""])
sketch10.MapMode = "FlatFace"
sketch10.AttachmentOffset = App.Placement(App.Vector(0, 0, 29.92), App.Rotation())
sketch10.addGeometry(Part.Circle(App.Vector(0, 0, 0), App.Vector(0, 0, 1), 3.3), False)
sketch10.addConstraint([
    Sketcher.Constraint("Coincident", 0, 3, -1, 1),
    Sketcher.Constraint("Diameter", 0, 6.65),
])
pocket4 = body.newObject("PartDesign::Pocket", "Pocket003")
pocket4.Profile = sketch10
pocket4.Length = 2.5
pocket4.Reversed = True

# Sketch on XZ plane
sketch11 = body.newObject("Sketcher::SketchObject", "Sketch010")
sketch11.AttachmentSupport = (doc.getObject("XZ_Plane"), [""])
sketch11.MapMode = "FlatFace"
sketch11.AttachmentOffset = App.Placement(App.Vector(0, 0, -1.25), App.Rotation())
sketch11.addGeometry([
    Part.Circle(App.Vector(21.6, -0.6, 0), App.Vector(0, 0, 1), 1.8),
    Part.Circle(App.Vector(21.6, 66.7, 0), App.Vector(0, 0, 1), 1.8),
    Part.Circle(App.Vector(-21.6, 66.7, 0), App.Vector(0, 0, 1), 1.8),
    Part.Circle(App.Vector(-21.6, -0.6, 0), App.Vector(0, 0, 1), 1.8),
], False)
sketch11.addConstraint([
    Sketcher.Constraint("Equal", 0, 1),
    Sketcher.Constraint("Equal", 1, 2),
    Sketcher.Constraint("Equal", 2, 3),
    Sketcher.Constraint("Symmetric", 1, 3, 2, 3, -2),
    Sketcher.Constraint("Symmetric", 0, 3, 3, 3, -2),
    Sketcher.Constraint("Vertical", 0, 3, 1, 3),
    Sketcher.Constraint("Diameter", 0, 3.5),
    Sketcher.Constraint("DistanceX", -1, 1, 0, 3, 21.59),
    Sketcher.Constraint("DistanceY", 0, 3, 1, 3, 67.31),
    Sketcher.Constraint("DistanceY", 0, 3, -1, 1, 0.635),
])
pocket5 = body.newObject("PartDesign::Pocket", "Pocket004")
pocket5.Profile = sketch11
pocket5.Length = 50
pocket5.Reversed = True

doc.recompute()
